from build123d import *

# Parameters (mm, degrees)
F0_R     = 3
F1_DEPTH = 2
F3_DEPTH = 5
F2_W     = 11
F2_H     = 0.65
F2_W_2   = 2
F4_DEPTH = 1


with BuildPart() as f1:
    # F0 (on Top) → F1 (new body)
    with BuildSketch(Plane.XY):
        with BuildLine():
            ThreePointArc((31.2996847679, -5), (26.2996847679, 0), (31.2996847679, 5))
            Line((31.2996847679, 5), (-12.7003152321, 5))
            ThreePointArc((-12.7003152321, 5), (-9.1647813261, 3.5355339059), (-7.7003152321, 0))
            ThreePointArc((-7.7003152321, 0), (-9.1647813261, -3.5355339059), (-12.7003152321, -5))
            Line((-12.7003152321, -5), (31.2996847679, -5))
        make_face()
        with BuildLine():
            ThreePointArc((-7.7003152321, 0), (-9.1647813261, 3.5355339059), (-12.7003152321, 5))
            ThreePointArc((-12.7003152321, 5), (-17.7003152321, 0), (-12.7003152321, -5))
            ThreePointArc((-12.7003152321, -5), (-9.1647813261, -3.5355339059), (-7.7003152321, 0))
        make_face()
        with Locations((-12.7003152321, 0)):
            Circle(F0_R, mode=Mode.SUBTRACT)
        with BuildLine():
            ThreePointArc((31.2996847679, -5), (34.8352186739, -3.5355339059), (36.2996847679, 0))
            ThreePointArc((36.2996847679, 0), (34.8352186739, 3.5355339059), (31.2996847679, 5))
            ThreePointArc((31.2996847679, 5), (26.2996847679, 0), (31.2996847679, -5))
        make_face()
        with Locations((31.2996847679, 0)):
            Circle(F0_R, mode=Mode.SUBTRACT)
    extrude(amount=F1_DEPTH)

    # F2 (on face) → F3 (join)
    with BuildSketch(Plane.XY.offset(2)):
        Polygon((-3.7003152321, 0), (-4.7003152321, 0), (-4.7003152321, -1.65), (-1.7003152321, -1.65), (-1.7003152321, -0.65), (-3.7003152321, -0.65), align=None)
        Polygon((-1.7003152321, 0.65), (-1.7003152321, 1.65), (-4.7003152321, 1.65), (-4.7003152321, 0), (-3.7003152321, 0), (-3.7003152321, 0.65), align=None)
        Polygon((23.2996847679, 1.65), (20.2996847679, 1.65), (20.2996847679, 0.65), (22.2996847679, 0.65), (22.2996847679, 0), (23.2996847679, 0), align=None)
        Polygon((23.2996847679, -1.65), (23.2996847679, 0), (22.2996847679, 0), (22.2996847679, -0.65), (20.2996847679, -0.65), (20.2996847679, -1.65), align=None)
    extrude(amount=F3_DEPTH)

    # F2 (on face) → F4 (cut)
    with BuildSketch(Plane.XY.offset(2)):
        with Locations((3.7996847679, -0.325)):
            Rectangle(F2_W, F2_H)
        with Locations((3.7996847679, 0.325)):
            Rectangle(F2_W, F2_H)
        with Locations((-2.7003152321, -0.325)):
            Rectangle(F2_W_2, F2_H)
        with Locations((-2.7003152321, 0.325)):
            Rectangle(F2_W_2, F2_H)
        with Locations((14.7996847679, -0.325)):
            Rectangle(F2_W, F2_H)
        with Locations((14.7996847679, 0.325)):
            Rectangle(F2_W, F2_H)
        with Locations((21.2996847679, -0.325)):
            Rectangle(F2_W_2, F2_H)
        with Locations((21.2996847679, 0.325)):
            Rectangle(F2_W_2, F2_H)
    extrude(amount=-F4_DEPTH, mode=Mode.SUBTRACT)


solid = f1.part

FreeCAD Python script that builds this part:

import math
import FreeCAD as App
import Part
import Sketcher
Q = App.Units.Quantity


def add_polygon(sketch, points):
    """Adds a closed chain of lines whose ends are joined by coincident constraints."""
    first, n = sketch.GeometryCount, len(points)
    for a, b in zip(points, points[1:] + points[:1]):
        sketch.addGeometry(Part.LineSegment(App.Vector(*a, 0), App.Vector(*b, 0)), False)
    for i in range(n):
        sketch.addConstraint(Sketcher.Constraint("Coincident", first + i, 2, first + (i + 1) % n, 1))

doc = App.newDocument("Part")
body = doc.addObject("PartDesign::Body", "Body")

sketch1 = body.newObject("Sketcher::SketchObject", "Sketch")
sketch1.AttachmentSupport = (doc.getObject("XY_Plane"), [""])
sketch1.MapMode = "FlatFace"
sketch1.addGeometry([
    Part.LineSegment(App.Vector(-12.7, -5, 0), App.Vector(31.3, -5, 0)),
    Part.ArcOfCircle(Part.Circle(App.Vector(31.3, 0, 0), App.Vector(0, 0, 1), 5), math.radians(-90), math.radians(0)),
    Part.ArcOfCircle(Part.Circle(App.Vector(31.3, 0, 0), App.Vector(0, 0, 1), 5), math.radians(0), math.radians(90)),
    Part.LineSegment(App.Vector(31.3, 5, 0), App.Vector(-12.7, 5, 0)),
    Part.ArcOfCircle(Part.Circle(App.Vector(-12.7, 0, 0), App.Vector(0, 0, 1), 5), math.radians(90), math.radians(270)),
    Part.Circle(App.Vector(-12.7, 0, 0), App.Vector(0, 0, 1), 3),
    Part.Circle(App.Vector(31.3, 0, 0), App.Vector(0, 0, 1), 3),
], False)
sketch1.addConstraint([
    Sketcher.Constraint("Tangent", 0, 2, 1, 1),
    Sketcher.Constraint("Tangent", 1, 2, 2, 1),
    Sketcher.Constraint("Tangent", 2, 2, 3, 1),
    Sketcher.Constraint("Tangent", 3, 2, 4, 1),
    Sketcher.Constraint("Tangent", 4, 2, 0, 1),
    Sketcher.Constraint("Horizontal", 0),
    Sketcher.Constraint("Horizontal", 3),
    Sketcher.Constraint("Coincident", 5, 3, 4, 3),
    Sketcher.Constraint("Coincident", 6, 3, 1, 3),
    Sketcher.Constraint("Equal", 1, 2),
    Sketcher.Constraint("Equal", 5, 6),
    Sketcher.Constraint("PointOnObject", 1, 3, -1),
    Sketcher.Constraint("PointOnObject", 1, 2, -1),
    Sketcher.Constraint("Diameter", 5, Q("6 mm")),
    Sketcher.Constraint("Radius", 1, Q("5 mm")),
    Sketcher.Constraint("DistanceX", 0, 1, 0, 2, Q("44 mm")),
    Sketcher.Constraint("DistanceX", -1, 1, 1, 3, Q("31.299685 mm")),
])
pad1 = body.newObject("PartDesign::Pad", "Pad")
pad1.Profile = sketch1
pad1.Length = 2

sketch2 = body.newObject("Sketcher::SketchObject", "Sketch001")
sketch2.AttachmentSupport = (doc.getObject("XY_Plane"), [""])
sketch2.MapMode = "FlatFace"
sketch2.AttachmentOffset = App.Placement(App.Vector(0, 0, 2), App.Rotation())
add_polygon(sketch2, [(-4.7, -1.6), (-1.7, -1.6), (-1.7, -0.7), (-3.7, -0.7), (-3.7, 0.7), (-1.7, 0.7), (-1.7, 1.6), (-4.7, 1.6)])
add_polygon(sketch2, [(23.3, 1.6), (20.3, 1.6), (20.3, 0.7), (22.3, 0.7), (22.3, -0.7), (20.3, -0.7), (20.3, -1.6), (23.3, -1.6)])
sketch2.addConstraint([
    Sketcher.Constraint("Horizontal", 0),
    Sketcher.Constraint("Vertical", 1),
    Sketcher.Constraint("Horizontal", 2),
    Sketcher.Constraint("Vertical", 3),
    Sketcher.Constraint("Horizontal", 4),
    Sketcher.Constraint("Vertical", 5),
    Sketcher.Constraint("Horizontal", 6),
    Sketcher.Constraint("Vertical", 7),
    Sketcher.Constraint("Horizontal", 8),
    Sketcher.Constraint("Vertical", 9),
    Sketcher.Constraint("Horizontal", 10),
    Sketcher.Constraint("Vertical", 11),
    Sketcher.Constraint("Horizontal", 12),
    Sketcher.Constraint("Vertical", 13),
    Sketcher.Constraint("Horizontal", 14),
    Sketcher.Constraint("Vertical", 15),
    Sketcher.Constraint("Symmetric", 1, 2, 4, 2, -1),
    Sketcher.Constraint("Symmetric", 9, 2, 12, 2, -1),
    Sketcher.Constraint("Horizontal", 6, 2, 8, 2),
    Sketcher.Constraint("Horizontal", 4, 2, 9, 2),
    Sketcher.Constraint("Horizontal", 7, 2, 13, 2),
    Sketcher.Constraint("Equal", 6, 8),
    Sketcher.Constraint("Equal", 4, 10),
    Sketcher.Constraint("Equal", 1, 5),
    Sketcher.Constraint("DistanceX", 0, 1, 0, 2, Q("3 mm")),
    Sketcher.Constraint("DistanceX", 2, 2, 2, 1, Q("2 mm")),
    Sketcher.Constraint("DistanceY", 1, 1, 1, 2, Q("1 mm")),
    Sketcher.Constraint("DistanceY", 3, 1, 3, 2, Q("1.3 mm")),
    Sketcher.Constraint("DistanceX", 5, 2, 8, 2, Q("22 mm")),
    Sketcher.Constraint("DistanceX", 0, 2, -1, 1, Q("1.700315 mm")),
])
pad2 = body.newObject("PartDesign::Pad", "Pad001")
pad2.Profile = sketch2
pad2.Length = 5

sketch3 = body.newObject("Sketcher::SketchObject", "Sketch002")
sketch3.AttachmentSupport = (doc.getObject("XY_Plane"), [""])
sketch3.MapMode = "FlatFace"
sketch3.AttachmentOffset = App.Placement(App.Vector(0, 0, 2), App.Rotation())
add_polygon(sketch3, [(-3.7, 0.7), (-3.7, -0.7), (22.3, -0.7), (22.3, 0.7)])
sketch3.addConstraint([
    Sketcher.Constraint("Vertical", 0),
    Sketcher.Constraint("Horizontal", 1),
    Sketcher.Constraint("Vertical", 2),
    Sketcher.Constraint("Horizontal", 3),
    Sketcher.Constraint("DistanceX", 1, 1, 1, 2, Q("26 mm")),
    Sketcher.Constraint("DistanceY", 0, 2, 0, 1, Q("1.3 mm")),
    Sketcher.Constraint("DistanceY", 0, 2, -1, 1, Q("0.65 mm")),
    Sketcher.Constraint("DistanceX", 0, 2, -1, 1, Q("3.700315 mm")),
])
pocket1 = body.newObject("PartDesign::Pocket", "Pocket")
pocket1.Profile = sketch3
pocket1.Length = 1

doc.recompute()
